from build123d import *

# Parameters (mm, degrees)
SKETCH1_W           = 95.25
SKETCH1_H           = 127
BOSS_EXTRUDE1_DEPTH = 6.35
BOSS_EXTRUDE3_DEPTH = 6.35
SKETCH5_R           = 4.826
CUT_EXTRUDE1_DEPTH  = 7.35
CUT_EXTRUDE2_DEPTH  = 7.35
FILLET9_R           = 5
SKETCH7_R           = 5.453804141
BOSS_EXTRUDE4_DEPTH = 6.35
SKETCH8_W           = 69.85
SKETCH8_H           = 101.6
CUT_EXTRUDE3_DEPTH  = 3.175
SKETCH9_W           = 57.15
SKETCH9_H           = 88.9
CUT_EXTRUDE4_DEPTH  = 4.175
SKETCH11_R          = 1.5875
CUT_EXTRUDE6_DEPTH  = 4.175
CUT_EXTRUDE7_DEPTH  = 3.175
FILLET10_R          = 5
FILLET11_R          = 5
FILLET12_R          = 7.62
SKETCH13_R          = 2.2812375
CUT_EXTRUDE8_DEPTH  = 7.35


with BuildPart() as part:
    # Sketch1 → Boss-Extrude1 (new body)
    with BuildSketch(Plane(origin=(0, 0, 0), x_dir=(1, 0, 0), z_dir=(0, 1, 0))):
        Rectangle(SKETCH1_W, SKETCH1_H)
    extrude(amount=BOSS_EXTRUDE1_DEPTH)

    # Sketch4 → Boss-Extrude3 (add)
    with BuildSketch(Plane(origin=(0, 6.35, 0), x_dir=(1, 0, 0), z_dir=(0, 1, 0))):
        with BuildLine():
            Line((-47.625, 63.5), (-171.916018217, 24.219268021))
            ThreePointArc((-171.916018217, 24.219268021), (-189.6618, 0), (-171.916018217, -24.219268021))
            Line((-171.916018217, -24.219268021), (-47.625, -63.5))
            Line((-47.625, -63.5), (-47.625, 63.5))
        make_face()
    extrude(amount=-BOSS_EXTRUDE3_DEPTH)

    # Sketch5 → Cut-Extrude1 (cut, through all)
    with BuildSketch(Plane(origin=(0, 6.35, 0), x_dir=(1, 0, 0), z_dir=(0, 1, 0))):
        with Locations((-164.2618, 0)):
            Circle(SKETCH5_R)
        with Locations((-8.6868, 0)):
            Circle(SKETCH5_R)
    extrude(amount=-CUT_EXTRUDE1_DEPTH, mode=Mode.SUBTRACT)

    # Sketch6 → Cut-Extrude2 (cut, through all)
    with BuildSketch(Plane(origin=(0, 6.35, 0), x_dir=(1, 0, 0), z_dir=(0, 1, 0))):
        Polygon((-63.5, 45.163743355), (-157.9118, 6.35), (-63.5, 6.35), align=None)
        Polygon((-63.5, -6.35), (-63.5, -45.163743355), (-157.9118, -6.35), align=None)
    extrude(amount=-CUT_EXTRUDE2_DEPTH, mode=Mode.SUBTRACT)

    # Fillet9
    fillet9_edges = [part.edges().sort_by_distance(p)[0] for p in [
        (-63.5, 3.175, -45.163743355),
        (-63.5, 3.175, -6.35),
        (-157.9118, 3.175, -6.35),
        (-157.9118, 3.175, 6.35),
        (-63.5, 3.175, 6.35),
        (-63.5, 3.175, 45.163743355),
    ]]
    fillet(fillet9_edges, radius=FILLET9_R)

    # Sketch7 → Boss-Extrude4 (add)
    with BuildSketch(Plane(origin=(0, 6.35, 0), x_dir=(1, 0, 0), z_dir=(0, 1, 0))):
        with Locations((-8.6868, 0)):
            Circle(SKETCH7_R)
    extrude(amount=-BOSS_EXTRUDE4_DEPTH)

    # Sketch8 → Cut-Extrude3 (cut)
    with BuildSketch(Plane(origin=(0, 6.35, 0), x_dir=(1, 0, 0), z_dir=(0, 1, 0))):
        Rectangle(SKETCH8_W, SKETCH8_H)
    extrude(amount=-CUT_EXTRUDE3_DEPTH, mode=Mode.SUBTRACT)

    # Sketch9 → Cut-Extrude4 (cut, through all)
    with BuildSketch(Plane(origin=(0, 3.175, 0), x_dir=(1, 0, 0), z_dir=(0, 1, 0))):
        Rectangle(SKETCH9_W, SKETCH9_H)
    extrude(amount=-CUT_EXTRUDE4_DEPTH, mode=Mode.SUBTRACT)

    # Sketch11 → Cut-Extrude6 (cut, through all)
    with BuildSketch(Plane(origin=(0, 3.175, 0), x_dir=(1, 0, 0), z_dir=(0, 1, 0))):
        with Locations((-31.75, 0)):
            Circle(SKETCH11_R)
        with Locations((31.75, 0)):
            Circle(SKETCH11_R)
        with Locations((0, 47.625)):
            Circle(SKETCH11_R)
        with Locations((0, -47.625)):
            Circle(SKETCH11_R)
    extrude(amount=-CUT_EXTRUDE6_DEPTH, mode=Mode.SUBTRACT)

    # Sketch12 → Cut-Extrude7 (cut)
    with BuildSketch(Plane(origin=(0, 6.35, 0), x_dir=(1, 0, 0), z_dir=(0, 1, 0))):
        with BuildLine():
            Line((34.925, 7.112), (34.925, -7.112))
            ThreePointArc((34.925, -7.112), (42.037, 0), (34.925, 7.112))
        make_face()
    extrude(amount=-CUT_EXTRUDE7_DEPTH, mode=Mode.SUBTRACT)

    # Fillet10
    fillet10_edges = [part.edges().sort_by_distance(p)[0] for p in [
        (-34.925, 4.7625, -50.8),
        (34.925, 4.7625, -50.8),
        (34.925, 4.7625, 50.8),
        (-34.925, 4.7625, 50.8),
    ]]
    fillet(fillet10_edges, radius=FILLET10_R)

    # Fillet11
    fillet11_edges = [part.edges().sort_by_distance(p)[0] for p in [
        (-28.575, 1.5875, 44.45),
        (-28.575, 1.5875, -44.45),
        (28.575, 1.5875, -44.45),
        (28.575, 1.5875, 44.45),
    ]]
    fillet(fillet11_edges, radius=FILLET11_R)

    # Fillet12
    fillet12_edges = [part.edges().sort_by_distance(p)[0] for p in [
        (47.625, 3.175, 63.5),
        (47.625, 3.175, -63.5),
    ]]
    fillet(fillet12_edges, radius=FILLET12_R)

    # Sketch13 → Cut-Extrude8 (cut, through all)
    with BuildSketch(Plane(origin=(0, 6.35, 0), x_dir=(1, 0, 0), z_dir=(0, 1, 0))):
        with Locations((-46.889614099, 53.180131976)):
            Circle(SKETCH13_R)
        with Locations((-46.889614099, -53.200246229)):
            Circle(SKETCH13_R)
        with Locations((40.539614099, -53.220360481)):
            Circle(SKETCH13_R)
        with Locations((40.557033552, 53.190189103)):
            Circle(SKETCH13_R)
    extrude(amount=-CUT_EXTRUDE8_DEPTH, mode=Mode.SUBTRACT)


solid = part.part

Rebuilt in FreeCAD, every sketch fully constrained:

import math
import FreeCAD as App
import Part
import Sketcher
from FreeCAD import Vector
Q = App.Units.Quantity


def edges_at(feature, points):
    """Names of the edges that pass closest to the given points."""
    edges = feature.Shape.Edges
    near = lambda p: min(range(len(edges)), key=lambda i: edges[i].distToShape(Part.Vertex(*p))[0])
    return sorted({f"Edge{near(p) + 1}" for p in points})

doc = App.newDocument("Part")
body = doc.addObject("PartDesign::Body", "Body")

sketch1 = doc.addObject("Sketcher::SketchObject", "Sketch")
body.addObject(sketch1)
sketch1.AttachmentSupport = (doc.XZ_Plane, [""])
sketch1.MapMode = "FlatFace"
sketch1.addGeometry([
    Part.LineSegment(Vector(-48, -64, 0), Vector(-48, 64, 0)),
    Part.LineSegment(Vector(-48, 64, 0), Vector(48, 64, 0)),
    Part.LineSegment(Vector(48, 64, 0), Vector(48, -64, 0)),
    Part.LineSegment(Vector(48, -64, 0), Vector(-48, -64, 0)),
], False)
sketch1.addConstraint([
    Sketcher.Constraint("Coincident", 0, 2, 1, 1),
    Sketcher.Constraint("Coincident", 1, 2, 2, 1),
    Sketcher.Constraint("Coincident", 2, 2, 3, 1),
    Sketcher.Constraint("Coincident", 3, 2, 0, 1),
    Sketcher.Constraint("Vertical", 0),
    Sketcher.Constraint("Horizontal", 1),
    Sketcher.Constraint("Vertical", 2),
    Sketcher.Constraint("Horizontal", 3),
    Sketcher.Constraint("Symmetric", 0, 2, 2, 2, -1, 1),
    Sketcher.Constraint("DistanceY", 0, 1, 0, 2, Q("5 in")),
    Sketcher.Constraint("DistanceX", 1, 1, 1, 2, Q("3.75 in")),
])
pad1 = doc.addObject("PartDesign::Pad", "Pad")
body.addObject(pad1)
pad1.Profile = sketch1
pad1.Length = Q("0.25 in")
pad1.Reversed = True

sketch2 = doc.addObject("Sketcher::SketchObject", "Sketch001")
body.addObject(sketch2)
sketch2.AttachmentSupport = (doc.XZ_Plane, [""])
sketch2.MapMode = "FlatFace"
sketch2.AttachmentOffset = App.Placement(Vector(0, 0, -0.25 * 25.4), App.Rotation())
sketch2.addGeometry([
    Part.LineSegment(Vector(-48, -64, 0), Vector(-172, -24, 0)),
    Part.ArcOfCircle(Part.Circle(Vector(-164, 0, 0), Vector(0, 0, 1), 25), math.radians(108), math.radians(252)),
    Part.LineSegment(Vector(-172, 24, 0), Vector(-48, 64, 0)),
    Part.LineSegment(Vector(-48, 64, 0), Vector(-48, -64, 0)),
], False)
sketch2.addConstraint([
    Sketcher.Constraint("Tangent", 0, 2, 1, 2),
    Sketcher.Constraint("Tangent", 1, 1, 2, 1),
    Sketcher.Constraint("Coincident", 2, 2, 3, 1),
    Sketcher.Constraint("Coincident", 3, 2, 0, 1),
    Sketcher.Constraint("Vertical", 3),
    Sketcher.Constraint("Symmetric", 0, 2, 1, 1, -1),
    Sketcher.Constraint("Radius", 1, Q("1 in")),
    Sketcher.Constraint("DistanceY", 3, 2, 3, 1, Q("5 in")),
    Sketcher.Constraint("DistanceX", 1, 3, -1, 1, Q("6.467 in")),
    Sketcher.Constraint("DistanceX", 2, 2, -1, 1, Q("1.875 in")),
])
pad2 = doc.addObject("PartDesign::Pad", "Pad001")
body.addObject(pad2)
pad2.Profile = sketch2
pad2.Length = Q("0.25 in")

sketch3 = doc.addObject("Sketcher::SketchObject", "Sketch002")
body.addObject(sketch3)
sketch3.AttachmentSupport = (doc.XZ_Plane, [""])
sketch3.MapMode = "FlatFace"
sketch3.AttachmentOffset = App.Placement(Vector(0, 0, -0.25 * 25.4), App.Rotation())
sketch3.addGeometry([
    Part.Circle(Vector(-164.3, 0, 0), Vector(0, 0, 1), 4.8),
    Part.Circle(Vector(-8.7, 0, 0), Vector(0, 0, 1), 4.8),
], False)
sketch3.addConstraint([
    Sketcher.Constraint("Equal", 0, 1),
    Sketcher.Constraint("PointOnObject", 0, 3, -1),
    Sketcher.Constraint("PointOnObject", 1, 3, -1),
    Sketcher.Constraint("Diameter", 0, Q("0.38 in")),
    Sketcher.Constraint("DistanceX", 0, 3, -1, 1, Q("6.467 in")),
    Sketcher.Constraint("DistanceX", 1, 3, -1, 1, Q("0.342 in")),
])
pocket1 = doc.addObject("PartDesign::Pocket", "Pocket")
body.addObject(pocket1)
pocket1.Profile = sketch3
pocket1.Type = "ThroughAll"
pocket1.Reversed = True

sketch4 = doc.addObject("Sketcher::SketchObject", "Sketch003")
body.addObject(sketch4)
sketch4.AttachmentSupport = (doc.XZ_Plane, [""])
sketch4.MapMode = "FlatFace"
sketch4.AttachmentOffset = App.Placement(Vector(0, 0, -0.25 * 25.4), App.Rotation())
sketch4.addGeometry([
    Part.LineSegment(Vector(-64, -45, 0), Vector(-158, -6, 0)),
    Part.LineSegment(Vector(-158, -6, 0), Vector(-64, -6, 0)),
    Part.LineSegment(Vector(-64, -6, 0), Vector(-64, -45, 0)),
    Part.LineSegment(Vector(-64, 45, 0), Vector(-64, 6, 0)),
    Part.LineSegment(Vector(-64, 6, 0), Vector(-158, 6, 0)),
    Part.LineSegment(Vector(-158, 6, 0), Vector(-64, 45, 0)),
], False)
sketch4.addConstraint([
    Sketcher.Constraint("Coincident", 0, 2, 1, 1),
    Sketcher.Constraint("Coincident", 1, 2, 2, 1),
    Sketcher.Constraint("Coincident", 2, 2, 0, 1),
    Sketcher.Constraint("Coincident", 3, 2, 4, 1),
    Sketcher.Constraint("Coincident", 4, 2, 5, 1),
    Sketcher.Constraint("Coincident", 5, 2, 3, 1),
    Sketcher.Constraint("Horizontal", 1),
    Sketcher.Constraint("Vertical", 2),
    Sketcher.Constraint("Vertical", 3),
    Sketcher.Constraint("Horizontal", 4),
    Sketcher.Constraint("Symmetric", 1, 2, 3, 2, -1),
    Sketcher.Constraint("Vertical", 0, 2, 4, 2),
    Sketcher.Constraint("Equal", 2, 3),
    Sketcher.Constraint("DistanceX", 1, 2, -1, 1, Q("2.5 in")),
    Sketcher.Constraint("DistanceY", 1, 2, 3, 2, Q("0.5 in")),
    Sketcher.Constraint("DistanceX", 1, 1, 1, 2, Q("3.717 in")),
    Sketcher.Constraint("DistanceY", 2, 2, 2, 1, Q("1.5281001 in")),
])
pocket2 = doc.addObject("PartDesign::Pocket", "Pocket001")
body.addObject(pocket2)
pocket2.Profile = sketch4
pocket2.Type = "ThroughAll"
pocket2.Reversed = True
doc.recompute()

fillet = doc.addObject("PartDesign::Fillet", "Fillet")
body.addObject(fillet)
fillet.Base = (pocket2, edges_at(pocket2, [
    (-63.5, 3.175, -45.164),
    (-63.5, 3.175, -6.35),
    (-157.912, 3.175, -6.35),
    (-157.912, 3.175, 6.35),
    (-63.5, 3.175, 6.35),
    (-63.5, 3.175, 45.164),
]))
fillet.Radius = 5

sketch5 = doc.addObject("Sketcher::SketchObject", "Sketch004")
body.addObject(sketch5)
sketch5.AttachmentSupport = (doc.XZ_Plane, [""])
sketch5.MapMode = "FlatFace"
sketch5.AttachmentOffset = App.Placement(Vector(0, 0, -0.25 * 25.4), App.Rotation())
sketch5.addGeometry(Part.Circle(Vector(-9, 0, 0), Vector(0, 0, 1), 5), False)
sketch5.addConstraint([
    Sketcher.Constraint("PointOnObject", 0, 3, -1),
    Sketcher.Constraint("Diameter", 0, Q("10.907608 mm")),
    Sketcher.Constraint("DistanceX", 0, 3, -1, 1, Q("0.342 in")),
])
pad3 = doc.addObject("PartDesign::Pad", "Pad002")
body.addObject(pad3)
pad3.Profile = sketch5
pad3.Length = Q("0.25 in")

sketch6 = doc.addObject("Sketcher::SketchObject", "Sketch005")
body.addObject(sketch6)
sketch6.AttachmentSupport = (doc.XZ_Plane, [""])
sketch6.MapMode = "FlatFace"
sketch6.AttachmentOffset = App.Placement(Vector(0, 0, -0.25 * 25.4), App.Rotation())
sketch6.addGeometry([
    Part.LineSegment(Vector(-35, -51, 0), Vector(-35, 51, 0)),
    Part.LineSegment(Vector(-35, 51, 0), Vector(35, 51, 0)),
    Part.LineSegment(Vector(35, 51, 0), Vector(35, -51, 0)),
    Part.LineSegment(Vector(35, -51, 0), Vector(-35, -51, 0)),
], False)
sketch6.addConstraint([
    Sketcher.Constraint("Coincident", 0, 2, 1, 1),
    Sketcher.Constraint("Coincident", 1, 2, 2, 1),
    Sketcher.Constraint("Coincident", 2, 2, 3, 1),
    Sketcher.Constraint("Coincident", 3, 2, 0, 1),
    Sketcher.Constraint("Vertical", 0),
    Sketcher.Constraint("Horizontal", 1),
    Sketcher.Constraint("Vertical", 2),
    Sketcher.Constraint("Horizontal", 3),
    Sketcher.Constraint("Symmetric", 0, 2, 2, 2, -1, 1),
    Sketcher.Constraint("DistanceY", 0, 1, 0, 2, Q("4 in")),
    Sketcher.Constraint("DistanceX", 1, 1, 1, 2, Q("2.75 in")),
])
pocket3 = doc.addObject("PartDesign::Pocket", "Pocket002")
body.addObject(pocket3)
pocket3.Profile = sketch6
pocket3.Length = Q("0.125 in")
pocket3.Reversed = True

sketch7 = doc.addObject("Sketcher::SketchObject", "Sketch006")
body.addObject(sketch7)
sketch7.AttachmentSupport = (doc.XZ_Plane, [""])
sketch7.MapMode = "FlatFace"
sketch7.AttachmentOffset = App.Placement(Vector(0, 0, -0.125 * 25.4), App.Rotation())
sketch7.addGeometry([
    Part.LineSegment(Vector(-29, -44, 0), Vector(-29, 44, 0)),
    Part.LineSegment(Vector(-29, 44, 0), Vector(29, 44, 0)),
    Part.LineSegment(Vector(29, 44, 0), Vector(29, -44, 0)),
    Part.LineSegment(Vector(29, -44, 0), Vector(-29, -44, 0)),
], False)
sketch7.addConstraint([
    Sketcher.Constraint("Coincident", 0, 2, 1, 1),
    Sketcher.Constraint("Coincident", 1, 2, 2, 1),
    Sketcher.Constraint("Coincident", 2, 2, 3, 1),
    Sketcher.Constraint("Coincident", 3, 2, 0, 1),
    Sketcher.Constraint("Vertical", 0),
    Sketcher.Constraint("Horizontal", 1),
    Sketcher.Constraint("Vertical", 2),
    Sketcher.Constraint("Horizontal", 3),
    Sketcher.Constraint("Symmetric", 0, 2, 2, 2, -1, 1),
    Sketcher.Constraint("DistanceY", 0, 1, 0, 2, Q("3.5 in")),
    Sketcher.Constraint("DistanceX", 1, 1, 1, 2, Q("2.25 in")),
])
pocket4 = doc.addObject("PartDesign::Pocket", "Pocket003")
body.addObject(pocket4)
pocket4.Profile = sketch7
pocket4.Type = "ThroughAll"
pocket4.Reversed = True

sketch8 = doc.addObject("Sketcher::SketchObject", "Sketch007")
body.addObject(sketch8)
sketch8.AttachmentSupport = (doc.XZ_Plane, [""])
sketch8.MapMode = "FlatFace"
sketch8.AttachmentOffset = App.Placement(Vector(0, 0, -0.125 * 25.4), App.Rotation())
sketch8.addGeometry([
    Part.Circle(Vector(-31.8, 0, 0), Vector(0, 0, 1), 1.6),
    Part.Circle(Vector(31.8, 0, 0), Vector(0, 0, 1), 1.6),
    Part.Circle(Vector(0, -47.6, 0), Vector(0, 0, 1), 1.6),
    Part.Circle(Vector(0, 47.6, 0), Vector(0, 0, 1), 1.6),
], False)
sketch8.addConstraint([
    Sketcher.Constraint("Equal", 0, 1),
    Sketcher.Constraint("Equal", 1, 2),
    Sketcher.Constraint("Equal", 2, 3),
    Sketcher.Constraint("Symmetric", 0, 3, 1, 3, -1, 1),
    Sketcher.Constraint("Symmetric", 2, 3, 3, 3, -1, 1),
    Sketcher.Constraint("PointOnObject", 0, 3, -1),
    Sketcher.Constraint("PointOnObject", 2, 3, -2),
    Sketcher.Constraint("Diameter", 0, Q("0.125 in")),
    Sketcher.Constraint("DistanceX", 0, 3, 1, 3, Q("2.5 in")),
    Sketcher.Constraint("DistanceY", 2, 3, 3, 3, Q("3.75 in")),
])
pocket5 = doc.addObject("PartDesign::Pocket", "Pocket004")
body.addObject(pocket5)
pocket5.Profile = sketch8
pocket5.Type = "ThroughAll"
pocket5.Reversed = True

sketch9 = doc.addObject("Sketcher::SketchObject", "Sketch008")
body.addObject(sketch9)
sketch9.AttachmentSupport = (doc.XZ_Plane, [""])
sketch9.MapMode = "FlatFace"
sketch9.AttachmentOffset = App.Placement(Vector(0, 0, -0.25 * 25.4), App.Rotation())
sketch9.addGeometry([
    Part.LineSegment(Vector(35, -7, 0), Vector(35, 7, 0)),
    Part.ArcOfCircle(Part.Circle(Vector(35, 0, 0), Vector(0, 0, 1), 7), math.radians(-90), math.radians(90)),
], False)
sketch9.addConstraint([
    Sketcher.Constraint("Coincident", 0, 1, 1, 1),
    Sketcher.Constraint("Coincident", 1, 2, 0, 2),
    Sketcher.Constraint("Vertical", 0),
    Sketcher.Constraint("PointOnObject", 1, 3, -1),
    Sketcher.Constraint("Vertical", 1, 3, 0, 1),
    Sketcher.Constraint("Radius", 1, Q("0.28 in")),
    Sketcher.Constraint("DistanceX", -1, 1, 1, 3, Q("1.375 in")),
])
pocket6 = doc.addObject("PartDesign::Pocket", "Pocket005")
body.addObject(pocket6)
pocket6.Profile = sketch9
pocket6.Length = Q("0.125 in")
pocket6.Reversed = True
doc.recompute()

fillet2 = doc.addObject("PartDesign::Fillet", "Fillet001")
body.addObject(fillet2)
fillet2.Base = (pocket6, edges_at(pocket6, [
    (-34.925, 4.763, -50.8),
    (34.925, 4.763, -50.8),
    (34.925, 4.763, 50.8),
    (-34.925, 4.763, 50.8),
]))
fillet2.Radius = 5
doc.recompute()

fillet3 = doc.addObject("PartDesign::Fillet", "Fillet002")
body.addObject(fillet3)
fillet3.Base = (fillet2, edges_at(fillet2, [
    (-28.575, 1.587, 44.45),
    (-28.575, 1.587, -44.45),
    (28.575, 1.587, -44.45),
    (28.575, 1.587, 44.45),
]))
fillet3.Radius = 5
doc.recompute()

fillet4 = doc.addObject("PartDesign::Fillet", "Fillet003")
body.addObject(fillet4)
fillet4.Base = (fillet3, edges_at(fillet3, [(47.625, 3.175, 63.5), (47.625, 3.175, -63.5)]))
fillet4.Radius = Q("0.3 in")

sketch10 = doc.addObject("Sketcher::SketchObject", "Sketch009")
body.addObject(sketch10)
sketch10.AttachmentSupport = (doc.XZ_Plane, [""])
sketch10.MapMode = "FlatFace"
sketch10.AttachmentOffset = App.Placement(Vector(0, 0, -0.25 * 25.4), App.Rotation())
sketch10.addGeometry([
    Part.Circle(Vector(-46.9, -53.2, 0), Vector(0, 0, 1), 2.3),
    Part.Circle(Vector(-46.9, 53.2, 0), Vector(0, 0, 1), 2.3),
    Part.Circle(Vector(40.5, 53.2, 0), Vector(0, 0, 1), 2.3),
    Part.Circle(Vector(40.6, -53.2, 0), Vector(0, 0, 1), 2.3),
], False)
sketch10.addConstraint([
    Sketcher.Constraint("Equal", 0, 1),
    Sketcher.Constraint("Equal", 1, 2),
    Sketcher.Constraint("Equal", 2, 3),
    Sketcher.Constraint("Vertical", 0, 3, 1, 3),
    Sketcher.Constraint("Diameter", 0, Q("4.562475 mm")),
    Sketcher.Constraint("DistanceY", 3, 3, 1, 3, Q("4.1885998 in")),
    Sketcher.Constraint("DistanceY", 0, 3, -1, 1, Q("53.180132 mm")),
    Sketcher.Constraint("DistanceY", -1, 1, 2, 3, Q("53.22036 mm")),
    Sketcher.Constraint("DistanceY", 3, 3, -1, 1, Q("53.190189 mm")),
    Sketcher.Constraint("DistanceX", 1, 3, 2, 3, Q("87.429228 mm")),
    Sketcher.Constraint("DistanceX", 2, 3, 3, 3, Q("0.017419 mm")),
    Sketcher.Constraint("DistanceX", 0, 3, -1, 1, Q("46.889614 mm")),
])
pocket7 = doc.addObject("PartDesign::Pocket", "Pocket006")
body.addObject(pocket7)
pocket7.Profile = sketch10
pocket7.Type = "ThroughAll"
pocket7.Reversed = True

doc.recompute()
